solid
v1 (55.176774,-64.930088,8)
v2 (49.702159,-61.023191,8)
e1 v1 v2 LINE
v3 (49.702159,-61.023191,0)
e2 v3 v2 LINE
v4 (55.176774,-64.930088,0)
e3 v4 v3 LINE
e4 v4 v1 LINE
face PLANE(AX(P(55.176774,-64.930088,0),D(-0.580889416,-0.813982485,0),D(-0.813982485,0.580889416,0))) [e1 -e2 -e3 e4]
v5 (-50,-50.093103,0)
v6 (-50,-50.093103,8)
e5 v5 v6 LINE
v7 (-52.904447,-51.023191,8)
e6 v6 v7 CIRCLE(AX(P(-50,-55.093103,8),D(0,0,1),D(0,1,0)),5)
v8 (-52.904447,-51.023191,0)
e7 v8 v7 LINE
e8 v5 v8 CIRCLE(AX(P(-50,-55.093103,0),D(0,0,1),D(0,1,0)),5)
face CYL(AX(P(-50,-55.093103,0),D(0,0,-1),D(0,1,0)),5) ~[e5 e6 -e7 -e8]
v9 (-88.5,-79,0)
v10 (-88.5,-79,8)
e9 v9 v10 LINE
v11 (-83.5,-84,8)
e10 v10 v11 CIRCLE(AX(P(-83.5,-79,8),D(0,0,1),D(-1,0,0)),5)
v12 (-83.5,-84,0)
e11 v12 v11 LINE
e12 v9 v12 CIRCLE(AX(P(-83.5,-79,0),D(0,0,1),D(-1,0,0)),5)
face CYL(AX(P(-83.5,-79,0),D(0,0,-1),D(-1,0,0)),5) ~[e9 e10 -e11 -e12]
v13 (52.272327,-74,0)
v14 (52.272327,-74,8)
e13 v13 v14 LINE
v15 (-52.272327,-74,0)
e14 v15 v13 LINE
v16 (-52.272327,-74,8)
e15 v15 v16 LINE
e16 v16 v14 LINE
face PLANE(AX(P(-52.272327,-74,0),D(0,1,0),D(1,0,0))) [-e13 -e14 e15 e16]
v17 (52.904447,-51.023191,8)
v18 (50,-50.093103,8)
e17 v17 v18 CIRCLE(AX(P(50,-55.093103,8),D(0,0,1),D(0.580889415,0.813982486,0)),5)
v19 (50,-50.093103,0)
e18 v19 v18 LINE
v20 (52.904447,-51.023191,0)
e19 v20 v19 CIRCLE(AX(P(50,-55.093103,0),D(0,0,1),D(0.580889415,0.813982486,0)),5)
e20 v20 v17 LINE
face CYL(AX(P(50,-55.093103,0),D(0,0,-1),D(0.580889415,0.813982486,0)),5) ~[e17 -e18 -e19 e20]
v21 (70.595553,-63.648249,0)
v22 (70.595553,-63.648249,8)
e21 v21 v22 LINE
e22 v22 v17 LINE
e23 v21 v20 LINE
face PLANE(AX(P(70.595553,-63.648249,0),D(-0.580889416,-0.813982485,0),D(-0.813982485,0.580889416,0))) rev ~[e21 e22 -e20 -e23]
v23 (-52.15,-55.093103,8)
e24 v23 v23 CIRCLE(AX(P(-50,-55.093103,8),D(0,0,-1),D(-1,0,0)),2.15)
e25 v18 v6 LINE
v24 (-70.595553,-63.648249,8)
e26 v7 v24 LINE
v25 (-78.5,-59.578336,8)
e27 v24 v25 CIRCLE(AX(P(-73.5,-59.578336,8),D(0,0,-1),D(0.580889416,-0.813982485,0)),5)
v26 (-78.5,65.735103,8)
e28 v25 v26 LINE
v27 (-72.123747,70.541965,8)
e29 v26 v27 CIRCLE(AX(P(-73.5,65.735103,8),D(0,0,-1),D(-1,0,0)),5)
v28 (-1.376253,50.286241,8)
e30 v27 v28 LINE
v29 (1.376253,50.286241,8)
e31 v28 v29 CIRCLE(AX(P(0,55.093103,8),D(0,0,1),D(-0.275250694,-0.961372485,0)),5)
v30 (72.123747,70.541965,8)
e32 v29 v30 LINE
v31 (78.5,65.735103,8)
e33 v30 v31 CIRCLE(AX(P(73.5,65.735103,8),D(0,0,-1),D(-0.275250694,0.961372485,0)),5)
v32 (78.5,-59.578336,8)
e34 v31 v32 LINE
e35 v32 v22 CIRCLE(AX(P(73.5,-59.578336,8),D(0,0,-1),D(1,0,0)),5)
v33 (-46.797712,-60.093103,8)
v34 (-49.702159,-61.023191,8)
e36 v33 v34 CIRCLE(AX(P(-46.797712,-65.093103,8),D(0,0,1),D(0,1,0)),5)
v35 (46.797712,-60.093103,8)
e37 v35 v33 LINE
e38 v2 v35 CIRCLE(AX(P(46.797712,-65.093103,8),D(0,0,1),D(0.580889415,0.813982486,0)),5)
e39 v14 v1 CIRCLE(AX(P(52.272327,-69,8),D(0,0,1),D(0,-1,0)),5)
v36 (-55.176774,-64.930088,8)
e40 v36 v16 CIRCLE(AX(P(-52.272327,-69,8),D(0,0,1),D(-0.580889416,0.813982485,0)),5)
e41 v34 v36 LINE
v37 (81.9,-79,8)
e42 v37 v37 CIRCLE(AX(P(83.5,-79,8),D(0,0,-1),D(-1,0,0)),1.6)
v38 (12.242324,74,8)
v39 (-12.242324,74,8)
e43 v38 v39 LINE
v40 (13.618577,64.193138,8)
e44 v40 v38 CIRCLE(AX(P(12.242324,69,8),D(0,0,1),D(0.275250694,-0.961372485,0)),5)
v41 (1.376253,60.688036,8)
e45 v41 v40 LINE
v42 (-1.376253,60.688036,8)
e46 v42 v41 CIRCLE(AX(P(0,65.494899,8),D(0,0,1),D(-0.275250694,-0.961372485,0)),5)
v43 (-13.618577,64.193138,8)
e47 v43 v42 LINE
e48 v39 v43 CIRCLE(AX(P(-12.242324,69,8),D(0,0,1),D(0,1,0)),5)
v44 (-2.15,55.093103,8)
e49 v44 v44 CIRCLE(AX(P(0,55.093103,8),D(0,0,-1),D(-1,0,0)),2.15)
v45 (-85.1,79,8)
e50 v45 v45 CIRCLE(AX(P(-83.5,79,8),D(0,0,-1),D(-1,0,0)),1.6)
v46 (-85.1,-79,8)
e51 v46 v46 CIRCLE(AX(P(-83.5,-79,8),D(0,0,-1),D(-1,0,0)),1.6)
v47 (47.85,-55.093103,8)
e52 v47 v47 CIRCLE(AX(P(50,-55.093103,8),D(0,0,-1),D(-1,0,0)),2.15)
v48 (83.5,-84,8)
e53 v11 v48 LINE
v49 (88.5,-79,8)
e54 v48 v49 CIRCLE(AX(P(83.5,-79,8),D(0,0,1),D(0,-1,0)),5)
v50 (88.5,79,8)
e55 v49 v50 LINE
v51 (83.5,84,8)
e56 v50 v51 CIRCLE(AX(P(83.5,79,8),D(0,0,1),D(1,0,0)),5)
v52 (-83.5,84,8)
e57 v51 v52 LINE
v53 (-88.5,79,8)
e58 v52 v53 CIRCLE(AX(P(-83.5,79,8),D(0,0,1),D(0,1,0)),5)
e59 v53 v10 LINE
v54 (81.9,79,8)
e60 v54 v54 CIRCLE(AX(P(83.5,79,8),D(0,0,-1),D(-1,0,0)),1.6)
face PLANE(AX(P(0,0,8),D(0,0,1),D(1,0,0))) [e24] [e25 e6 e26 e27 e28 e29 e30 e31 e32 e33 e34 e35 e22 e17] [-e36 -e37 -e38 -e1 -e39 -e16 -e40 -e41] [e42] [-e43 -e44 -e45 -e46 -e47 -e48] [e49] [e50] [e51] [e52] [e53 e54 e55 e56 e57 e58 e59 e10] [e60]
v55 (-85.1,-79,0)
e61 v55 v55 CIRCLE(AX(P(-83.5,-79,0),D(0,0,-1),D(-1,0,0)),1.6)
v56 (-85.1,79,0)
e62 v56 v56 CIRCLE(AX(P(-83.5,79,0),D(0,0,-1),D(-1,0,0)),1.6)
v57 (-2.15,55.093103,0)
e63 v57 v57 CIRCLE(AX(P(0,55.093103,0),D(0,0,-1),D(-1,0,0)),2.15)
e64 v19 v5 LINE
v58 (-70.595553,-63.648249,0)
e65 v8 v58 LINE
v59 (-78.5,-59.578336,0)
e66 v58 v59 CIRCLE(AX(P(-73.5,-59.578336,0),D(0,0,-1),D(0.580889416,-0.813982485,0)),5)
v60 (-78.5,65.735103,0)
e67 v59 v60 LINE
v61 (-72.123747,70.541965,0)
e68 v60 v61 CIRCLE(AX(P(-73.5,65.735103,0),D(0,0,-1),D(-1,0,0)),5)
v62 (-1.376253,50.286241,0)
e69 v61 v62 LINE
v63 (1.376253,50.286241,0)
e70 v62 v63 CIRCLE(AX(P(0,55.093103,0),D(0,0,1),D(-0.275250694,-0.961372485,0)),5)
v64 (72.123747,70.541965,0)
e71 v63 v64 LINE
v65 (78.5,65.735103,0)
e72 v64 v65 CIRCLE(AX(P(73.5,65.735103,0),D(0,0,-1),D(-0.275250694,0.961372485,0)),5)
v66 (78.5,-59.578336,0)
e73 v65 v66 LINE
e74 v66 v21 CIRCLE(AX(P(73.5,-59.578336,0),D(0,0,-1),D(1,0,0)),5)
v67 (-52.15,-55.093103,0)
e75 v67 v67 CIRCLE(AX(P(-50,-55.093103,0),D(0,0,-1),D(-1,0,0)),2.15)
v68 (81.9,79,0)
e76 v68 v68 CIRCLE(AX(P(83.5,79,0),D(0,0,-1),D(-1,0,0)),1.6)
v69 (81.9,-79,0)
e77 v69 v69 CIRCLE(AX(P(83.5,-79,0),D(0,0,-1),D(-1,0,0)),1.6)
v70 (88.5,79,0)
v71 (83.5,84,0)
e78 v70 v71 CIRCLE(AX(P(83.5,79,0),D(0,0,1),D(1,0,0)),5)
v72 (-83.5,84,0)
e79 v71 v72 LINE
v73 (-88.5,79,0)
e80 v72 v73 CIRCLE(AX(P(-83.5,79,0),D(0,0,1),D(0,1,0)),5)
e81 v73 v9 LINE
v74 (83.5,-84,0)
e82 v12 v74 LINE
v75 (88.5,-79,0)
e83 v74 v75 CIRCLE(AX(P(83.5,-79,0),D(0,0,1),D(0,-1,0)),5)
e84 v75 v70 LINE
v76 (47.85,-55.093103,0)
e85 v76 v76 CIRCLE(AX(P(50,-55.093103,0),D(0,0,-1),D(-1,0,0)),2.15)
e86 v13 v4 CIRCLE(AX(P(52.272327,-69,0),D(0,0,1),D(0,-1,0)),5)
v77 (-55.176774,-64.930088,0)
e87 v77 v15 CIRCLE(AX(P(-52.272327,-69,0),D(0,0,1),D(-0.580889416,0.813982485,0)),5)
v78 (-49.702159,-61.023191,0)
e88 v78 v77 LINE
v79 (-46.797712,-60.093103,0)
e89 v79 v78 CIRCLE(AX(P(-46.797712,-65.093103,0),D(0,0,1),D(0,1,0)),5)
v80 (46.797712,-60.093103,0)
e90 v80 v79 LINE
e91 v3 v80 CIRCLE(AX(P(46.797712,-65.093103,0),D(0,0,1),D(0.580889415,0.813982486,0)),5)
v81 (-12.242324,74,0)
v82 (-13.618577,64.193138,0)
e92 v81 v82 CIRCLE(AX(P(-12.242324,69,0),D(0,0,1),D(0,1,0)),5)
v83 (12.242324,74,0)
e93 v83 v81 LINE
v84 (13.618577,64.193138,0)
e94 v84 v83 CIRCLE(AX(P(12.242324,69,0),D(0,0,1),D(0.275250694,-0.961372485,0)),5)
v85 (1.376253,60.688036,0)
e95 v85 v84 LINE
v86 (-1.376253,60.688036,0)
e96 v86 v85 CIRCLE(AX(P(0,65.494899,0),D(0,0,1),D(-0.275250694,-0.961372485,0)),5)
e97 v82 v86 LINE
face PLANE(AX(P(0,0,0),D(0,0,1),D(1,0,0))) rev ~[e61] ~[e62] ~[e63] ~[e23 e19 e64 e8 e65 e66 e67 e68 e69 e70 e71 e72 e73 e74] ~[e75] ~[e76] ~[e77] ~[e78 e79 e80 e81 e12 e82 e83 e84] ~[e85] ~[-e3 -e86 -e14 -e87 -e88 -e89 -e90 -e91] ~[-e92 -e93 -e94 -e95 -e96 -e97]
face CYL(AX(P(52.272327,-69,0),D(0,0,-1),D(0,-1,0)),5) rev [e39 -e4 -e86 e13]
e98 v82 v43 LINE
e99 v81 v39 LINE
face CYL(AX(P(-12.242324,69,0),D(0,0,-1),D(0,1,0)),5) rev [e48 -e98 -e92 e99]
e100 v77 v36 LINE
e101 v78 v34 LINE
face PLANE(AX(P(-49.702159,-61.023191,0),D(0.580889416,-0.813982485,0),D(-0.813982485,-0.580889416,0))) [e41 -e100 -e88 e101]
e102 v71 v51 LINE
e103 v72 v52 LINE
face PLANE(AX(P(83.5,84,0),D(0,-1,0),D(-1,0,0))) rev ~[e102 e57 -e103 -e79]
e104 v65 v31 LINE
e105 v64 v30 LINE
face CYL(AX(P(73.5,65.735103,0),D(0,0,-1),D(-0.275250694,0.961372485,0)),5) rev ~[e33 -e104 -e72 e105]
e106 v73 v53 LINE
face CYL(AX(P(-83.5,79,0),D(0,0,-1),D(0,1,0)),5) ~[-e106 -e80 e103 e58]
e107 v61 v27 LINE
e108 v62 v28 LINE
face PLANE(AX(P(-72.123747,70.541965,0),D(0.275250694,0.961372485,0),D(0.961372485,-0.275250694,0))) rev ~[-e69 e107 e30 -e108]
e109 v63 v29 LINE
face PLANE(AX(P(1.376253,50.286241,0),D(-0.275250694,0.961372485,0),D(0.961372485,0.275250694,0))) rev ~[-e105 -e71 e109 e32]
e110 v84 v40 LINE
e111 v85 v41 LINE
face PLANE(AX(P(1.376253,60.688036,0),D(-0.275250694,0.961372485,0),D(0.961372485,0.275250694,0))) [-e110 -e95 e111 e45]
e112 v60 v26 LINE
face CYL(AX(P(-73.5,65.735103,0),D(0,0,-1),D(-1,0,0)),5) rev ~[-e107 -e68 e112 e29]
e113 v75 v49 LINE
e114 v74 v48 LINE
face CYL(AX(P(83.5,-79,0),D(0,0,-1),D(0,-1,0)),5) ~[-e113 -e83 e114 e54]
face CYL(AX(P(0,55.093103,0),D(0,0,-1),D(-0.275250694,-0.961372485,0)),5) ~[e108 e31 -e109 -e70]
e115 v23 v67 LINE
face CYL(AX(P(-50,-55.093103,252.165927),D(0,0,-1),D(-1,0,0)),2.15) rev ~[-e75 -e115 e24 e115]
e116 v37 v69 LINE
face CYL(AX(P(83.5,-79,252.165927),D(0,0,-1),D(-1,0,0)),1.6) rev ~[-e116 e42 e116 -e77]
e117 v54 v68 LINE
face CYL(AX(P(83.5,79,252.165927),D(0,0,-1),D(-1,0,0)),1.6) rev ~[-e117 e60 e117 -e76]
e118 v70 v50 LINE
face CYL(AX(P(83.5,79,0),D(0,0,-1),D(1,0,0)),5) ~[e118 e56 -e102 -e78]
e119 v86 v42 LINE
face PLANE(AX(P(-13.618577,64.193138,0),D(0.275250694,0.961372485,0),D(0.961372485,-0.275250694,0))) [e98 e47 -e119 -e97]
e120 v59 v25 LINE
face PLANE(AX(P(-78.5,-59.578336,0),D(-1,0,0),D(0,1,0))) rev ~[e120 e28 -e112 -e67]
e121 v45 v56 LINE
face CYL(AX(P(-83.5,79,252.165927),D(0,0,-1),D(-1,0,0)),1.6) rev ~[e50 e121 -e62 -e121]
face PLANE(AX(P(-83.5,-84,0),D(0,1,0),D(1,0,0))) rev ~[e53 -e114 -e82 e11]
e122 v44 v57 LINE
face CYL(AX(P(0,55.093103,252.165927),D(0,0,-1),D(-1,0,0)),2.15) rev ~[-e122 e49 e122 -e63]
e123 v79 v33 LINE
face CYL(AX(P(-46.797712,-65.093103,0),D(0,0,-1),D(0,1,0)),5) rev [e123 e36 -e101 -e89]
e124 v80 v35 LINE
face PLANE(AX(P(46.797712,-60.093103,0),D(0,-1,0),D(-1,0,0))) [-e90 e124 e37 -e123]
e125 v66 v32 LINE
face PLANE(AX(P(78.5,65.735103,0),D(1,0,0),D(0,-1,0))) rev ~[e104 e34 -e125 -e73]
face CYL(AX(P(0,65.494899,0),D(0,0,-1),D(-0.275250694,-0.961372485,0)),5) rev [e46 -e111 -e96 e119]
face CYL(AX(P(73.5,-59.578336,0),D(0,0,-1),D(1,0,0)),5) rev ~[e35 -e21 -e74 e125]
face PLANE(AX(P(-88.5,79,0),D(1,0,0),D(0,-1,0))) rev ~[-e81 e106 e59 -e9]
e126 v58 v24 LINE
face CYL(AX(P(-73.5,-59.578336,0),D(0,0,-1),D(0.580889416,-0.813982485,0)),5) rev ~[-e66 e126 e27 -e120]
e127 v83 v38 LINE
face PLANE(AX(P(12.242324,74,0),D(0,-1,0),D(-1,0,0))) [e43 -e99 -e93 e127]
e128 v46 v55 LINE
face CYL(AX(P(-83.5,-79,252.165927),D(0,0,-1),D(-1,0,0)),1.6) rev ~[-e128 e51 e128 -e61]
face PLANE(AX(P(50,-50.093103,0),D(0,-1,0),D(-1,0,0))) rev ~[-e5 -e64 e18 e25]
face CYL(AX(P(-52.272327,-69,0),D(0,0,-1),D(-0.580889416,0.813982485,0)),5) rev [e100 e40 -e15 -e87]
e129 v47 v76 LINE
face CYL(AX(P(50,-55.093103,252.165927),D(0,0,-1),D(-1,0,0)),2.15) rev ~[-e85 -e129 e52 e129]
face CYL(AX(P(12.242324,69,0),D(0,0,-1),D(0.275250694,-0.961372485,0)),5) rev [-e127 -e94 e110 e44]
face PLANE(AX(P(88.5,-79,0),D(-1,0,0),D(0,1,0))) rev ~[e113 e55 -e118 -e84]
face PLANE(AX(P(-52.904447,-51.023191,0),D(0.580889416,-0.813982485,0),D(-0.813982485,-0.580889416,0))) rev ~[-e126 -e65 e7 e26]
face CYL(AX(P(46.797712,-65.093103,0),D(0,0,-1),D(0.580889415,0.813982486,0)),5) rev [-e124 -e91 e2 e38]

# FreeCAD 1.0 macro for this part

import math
import FreeCAD as App
import Part
import Sketcher

doc = App.newDocument("Part")
body = doc.addObject("PartDesign::Body", "Body")

# Sketch on XY plane
sketch1 = body.newObject("Sketcher::SketchObject", "Sketch")
sketch1.AttachmentSupport = (doc.getObject("XY_Plane"), [""])
sketch1.MapMode = "FlatFace"
sketch1.addGeometry([
    Part.LineSegment(App.Vector(-83.5, -84, 0), App.Vector(83.5, -84, 0)),  # 0
    Part.ArcOfCircle(Part.Circle(App.Vector(83.5, -79, 0), App.Vector(0, 0, 1), 5), math.radians(-90), math.radians(0)),  # 1
    Part.LineSegment(App.Vector(88.5, -79, 0), App.Vector(88.5, 79, 0)),  # 2
    Part.ArcOfCircle(Part.Circle(App.Vector(83.5, 79, 0), App.Vector(0, 0, 1), 5), math.radians(0), math.radians(90)),  # 3
    Part.LineSegment(App.Vector(83.5, 84, 0), App.Vector(-83.5, 84, 0)),  # 4
    Part.ArcOfCircle(Part.Circle(App.Vector(-83.5, 79, 0), App.Vector(0, 0, 1), 5), math.radians(90), math.radians(180)),  # 5
    Part.LineSegment(App.Vector(-88.5, 79, 0), App.Vector(-88.5, -79, 0)),  # 6
    Part.ArcOfCircle(Part.Circle(App.Vector(-83.5, -79, 0), App.Vector(0, 0, 1), 5), math.radians(180), math.radians(270)),  # 7
    Part.LineSegment(App.Vector(-55.2, -64.9, 0), App.Vector(-49.7, -61, 0)),  # 8
    Part.ArcOfCircle(Part.Circle(App.Vector(-46.8, -65.1, 0), App.Vector(0, 0, 1), 5), math.radians(90), math.radians(126)),  # 9
    Part.LineSegment(App.Vector(-46.8, -60.1, 0), App.Vector(46.8, -60.1, 0)),  # 10
    Part.ArcOfCircle(Part.Circle(App.Vector(46.8, -65.1, 0), App.Vector(0, 0, 1), 5), math.radians(54), math.radians(90)),  # 11
    Part.LineSegment(App.Vector(49.7, -61, 0), App.Vector(55.2, -64.9, 0)),  # 12
    Part.ArcOfCircle(Part.Circle(App.Vector(52.3, -69, 0), App.Vector(0, 0, 1), 5), math.radians(-90), math.radians(54)),  # 13
    Part.LineSegment(App.Vector(52.3, -74, 0), App.Vector(-52.3, -74, 0)),  # 14
    Part.ArcOfCircle(Part.Circle(App.Vector(-52.3, -69, 0), App.Vector(0, 0, 1), 5), math.radians(126), math.radians(270)),  # 15
    Part.ArcOfCircle(Part.Circle(App.Vector(-50, -55.1, 0), App.Vector(0, 0, 1), 5), math.radians(90), math.radians(126)),  # 16
    Part.LineSegment(App.Vector(-52.9, -51, 0), App.Vector(-70.6, -63.6, 0)),  # 17
    Part.ArcOfCircle(Part.Circle(App.Vector(-73.5, -59.6, 0), App.Vector(0, 0, 1), 5), math.radians(180), math.radians(306)),  # 18
    Part.LineSegment(App.Vector(-78.5, -59.6, 0), App.Vector(-78.5, 65.7, 0)),  # 19
    Part.ArcOfCircle(Part.Circle(App.Vector(-73.5, 65.7, 0), App.Vector(0, 0, 1), 5), math.radians(74), math.radians(180)),  # 20
    Part.LineSegment(App.Vector(-72.1, 70.5, 0), App.Vector(-1.4, 50.3, 0)),  # 21
    Part.ArcOfCircle(Part.Circle(App.Vector(0, 55.1, 0), App.Vector(0, 0, 1), 5), math.radians(-106), math.radians(-74)),  # 22
    Part.LineSegment(App.Vector(1.4, 50.3, 0), App.Vector(72.1, 70.5, 0)),  # 23
    Part.ArcOfCircle(Part.Circle(App.Vector(73.5, 65.7, 0), App.Vector(0, 0, 1), 5), math.radians(0), math.radians(106)),  # 24
    Part.LineSegment(App.Vector(78.5, 65.7, 0), App.Vector(78.5, -59.6, 0)),  # 25
    Part.ArcOfCircle(Part.Circle(App.Vector(73.5, -59.6, 0), App.Vector(0, 0, 1), 5), math.radians(-126), math.radians(0)),  # 26
    Part.LineSegment(App.Vector(70.6, -63.6, 0), App.Vector(52.9, -51, 0)),  # 27
    Part.ArcOfCircle(Part.Circle(App.Vector(50, -55.1, 0), App.Vector(0, 0, 1), 5), math.radians(54), math.radians(90)),  # 28
    Part.LineSegment(App.Vector(50, -50.1, 0), App.Vector(-50, -50.1, 0)),  # 29
    Part.LineSegment(App.Vector(-1.4, 60.7, 0), App.Vector(-13.6, 64.2, 0)),  # 30
    Part.ArcOfCircle(Part.Circle(App.Vector(-12.2, 69, 0), App.Vector(0, 0, 1), 5), math.radians(90), math.radians(254)),  # 31
    Part.LineSegment(App.Vector(-12.2, 74, 0), App.Vector(12.2, 74, 0)),  # 32
    Part.ArcOfCircle(Part.Circle(App.Vector(12.2, 69, 0), App.Vector(0, 0, 1), 5), math.radians(-74), math.radians(90)),  # 33
    Part.LineSegment(App.Vector(13.6, 64.2, 0), App.Vector(1.4, 60.7, 0)),  # 34
    Part.ArcOfCircle(Part.Circle(App.Vector(0, 65.5, 0), App.Vector(0, 0, 1), 5), math.radians(-106), math.radians(-74)),  # 35
], False)
sketch1.addConstraint([
    Sketcher.Constraint("Tangent", 0, 2, 1, 1),
    Sketcher.Constraint("Tangent", 1, 2, 2, 1),
    Sketcher.Constraint("Tangent", 2, 2, 3, 1),
    Sketcher.Constraint("Tangent", 3, 2, 4, 1),
    Sketcher.Constraint("Tangent", 4, 2, 5, 1),
    Sketcher.Constraint("Tangent", 5, 2, 6, 1),
    Sketcher.Constraint("Tangent", 6, 2, 7, 1),
    Sketcher.Constraint("Tangent", 7, 2, 0, 1),
    Sketcher.Constraint("Tangent", 8, 2, 9, 2),
    Sketcher.Constraint("Tangent", 9, 1, 10, 1),
    Sketcher.Constraint("Tangent", 10, 2, 11, 2),
    Sketcher.Constraint("Tangent", 11, 1, 12, 1),
    Sketcher.Constraint("Tangent", 12, 2, 13, 2),
    Sketcher.Constraint("Tangent", 13, 1, 14, 1),
    Sketcher.Constraint("Tangent", 14, 2, 15, 2),
    Sketcher.Constraint("Tangent", 15, 1, 8, 1),
    Sketcher.Constraint("Tangent", 16, 2, 17, 1),
    Sketcher.Constraint("Tangent", 17, 2, 18, 2),
    Sketcher.Constraint("Tangent", 18, 1, 19, 1),
    Sketcher.Constraint("Tangent", 19, 2, 20, 2),
    Sketcher.Constraint("Tangent", 20, 1, 21, 1),
    Sketcher.Constraint("Tangent", 21, 2, 22, 1),
    Sketcher.Constraint("Tangent", 22, 2, 23, 1),
    Sketcher.Constraint("Tangent", 23, 2, 24, 2),
    Sketcher.Constraint("Tangent", 24, 1, 25, 1),
    Sketcher.Constraint("Tangent", 25, 2, 26, 2),
    Sketcher.Constraint("Tangent", 26, 1, 27, 1),
    Sketcher.Constraint("Tangent", 27, 2, 28, 1),
    Sketcher.Constraint("Tangent", 28, 2, 29, 1),
    Sketcher.Constraint("Tangent", 29, 2, 16, 1),
    Sketcher.Constraint("Tangent", 30, 2, 31, 2),
    Sketcher.Constraint("Tangent", 31, 1, 32, 1),
    Sketcher.Constraint("Tangent", 32, 2, 33, 2),
    Sketcher.Constraint("Tangent", 33, 1, 34, 1),
    Sketcher.Constraint("Tangent", 34, 2, 35, 2),
    Sketcher.Constraint("Tangent", 35, 1, 30, 1),
    Sketcher.Constraint("Horizontal", 0),
    Sketcher.Constraint("Vertical", 2),
    Sketcher.Constraint("Horizontal", 4),
    Sketcher.Constraint("Vertical", 6),
    Sketcher.Constraint("Horizontal", 10),
    Sketcher.Constraint("Horizontal", 14),
    Sketcher.Constraint("Vertical", 19),
    Sketcher.Constraint("Vertical", 25),
    Sketcher.Constraint("Horizontal", 29),
    Sketcher.Constraint("Horizontal", 32),
    Sketcher.Constraint("Equal", 1, 3),
    Sketcher.Constraint("Equal", 3, 5),
    Sketcher.Constraint("Equal", 5, 7),
    Sketcher.Constraint("Equal", 7, 9),
    Sketcher.Constraint("Equal", 9, 11),
    Sketcher.Constraint("Equal", 11, 13),
    Sketcher.Constraint("Equal", 13, 15),
    Sketcher.Constraint("Equal", 15, 16),
    Sketcher.Constraint("Equal", 16, 18),
    Sketcher.Constraint("Equal", 18, 20),
    Sketcher.Constraint("Equal", 20, 22),
    Sketcher.Constraint("Equal", 22, 24),
    Sketcher.Constraint("Equal", 24, 26),
    Sketcher.Constraint("Equal", 26, 28),
    Sketcher.Constraint("Equal", 28, 31),
    Sketcher.Constraint("Equal", 31, 33),
    Sketcher.Constraint("Equal", 33, 35),
    Sketcher.Constraint("Symmetric", 1, 3, 5, 3, -1, 1),
    Sketcher.Constraint("Symmetric", 20, 3, 24, 3, -2),
    Sketcher.Constraint("Symmetric", 8, 2, 11, 1, -2),
    Sketcher.Constraint("Symmetric", 17, 2, 26, 1, -2),
    Sketcher.Constraint("Symmetric", 30, 2, 33, 1, -2),
    Sketcher.Constraint("PointOnObject", 22, 3, -2),
    Sketcher.Constraint("Parallel", 8, 17),
    Sketcher.Constraint("Parallel", 21, 30),
    Sketcher.Constraint("Radius", 1, 5.0),
    Sketcher.Constraint("DistanceX", 0, 1, 0, 2, 167.0),
    Sketcher.Constraint("DistanceX", 29, 2, 29, 1, 100.0),
    Sketcher.Constraint("DistanceY", 2, 1, 2, 2, 158.0),
    Sketcher.Constraint("DistanceY", 13, 3, -1, 1, 69.0),
    Sketcher.Constraint("DistanceY", -1, 1, 31, 3, 69.0),
    Sketcher.Constraint("DistanceY", 9, 3, 16, 3, 10.0),
    Sketcher.Constraint("DistanceX", 7, 3, 18, 3, 10.0),
    Sketcher.Constraint("DistanceY", 22, 3, 20, 3, 10.642),
    Sketcher.Constraint("DistanceY", 19, 1, 19, 2, 125.313439),
    Sketcher.Constraint("DistanceY", -1, 1, 35, 3, 65.494899),
    Sketcher.Constraint("DistanceX", 10, 1, 10, 2, 93.595424),
    Sketcher.Constraint("DistanceX", 14, 2, 14, 1, 104.544654),
    Sketcher.Constraint("DistanceX", 8, 2, -1, 1, 49.702159),
])
pad1 = body.newObject("PartDesign::Pad", "Pad")
pad1.Profile = sketch1
pad1.Length = 8

# Sketch on XY plane
sketch2 = body.newObject("Sketcher::SketchObject", "Sketch001")
sketch2.AttachmentSupport = (doc.getObject("XY_Plane"), [""])
sketch2.MapMode = "FlatFace"
sketch2.AttachmentOffset = App.Placement(App.Vector(0, 0, 8), App.Rotation())
sketch2.addGeometry([
    Part.Circle(App.Vector(-83.5, 79, 0), App.Vector(0, 0, 1), 1.6),
    Part.Circle(App.Vector(-83.5, -79, 0), App.Vector(0, 0, 1), 1.6),
    Part.Circle(App.Vector(83.5, -79, 0), App.Vector(0, 0, 1), 1.6),
    Part.Circle(App.Vector(83.5, 79, 0), App.Vector(0, 0, 1), 1.6),
], False)
sketch2.addConstraint([
    Sketcher.Constraint("Equal", 0, 1),
    Sketcher.Constraint("Equal", 1, 2),
    Sketcher.Constraint("Equal", 2, 3),
    Sketcher.Constraint("Symmetric", 0, 3, 2, 3, -1, 1),
    Sketcher.Constraint("Symmetric", 1, 3, 3, 3, -1, 1),
    Sketcher.Constraint("Symmetric", 1, 3, 2, 3, -2),
    Sketcher.Constraint("Diameter", 0, 3.2),
    Sketcher.Constraint("DistanceY", -1, 1, 0, 3, 79.0),
    Sketcher.Constraint("DistanceX", 1, 3, 2, 3, 167.0),
])
doc.recompute()
hole = body.newObject("PartDesign::Hole", "Hole")
hole.Profile = sketch2
hole.ThreadType = "None"
hole.Diameter = 3.2
hole.DepthType = "ThroughAll"

# Sketch on XY plane
sketch3 = body.newObject("Sketcher::SketchObject", "Sketch002")
sketch3.AttachmentSupport = (doc.getObject("XY_Plane"), [""])
sketch3.MapMode = "FlatFace"
sketch3.AttachmentOffset = App.Placement(App.Vector(0, 0, 8), App.Rotation())
sketch3.addGeometry([
    Part.Circle(App.Vector(-50, -55.1, 0), App.Vector(0, 0, 1), 2.1),
    Part.Circle(App.Vector(50, -55.1, 0), App.Vector(0, 0, 1), 2.1),
    Part.Circle(App.Vector(0, 55.1, 0), App.Vector(0, 0, 1), 2.1),
], False)
sketch3.addConstraint([
    Sketcher.Constraint("Equal", 0, 1),
    Sketcher.Constraint("Equal", 1, 2),
    Sketcher.Constraint("Symmetric", 0, 3, 1, 3, -2),
    Sketcher.Constraint("PointOnObject", 2, 3, -2),
    Sketcher.Constraint("Diameter", 0, 4.3),
    Sketcher.Constraint("DistanceX", 0, 3, -1, 1, 50.0),
    Sketcher.Constraint("DistanceY", 0, 3, -1, 1, 55.093103),
    Sketcher.Constraint("DistanceY", -1, 1, 2, 3, 55.093103),
])
doc.recompute()
hole2 = body.newObject("PartDesign::Hole", "Hole001")
hole2.Profile = sketch3
hole2.ThreadType = "None"
hole2.Diameter = 4.3
hole2.DepthType = "ThroughAll"

doc.recompute()
